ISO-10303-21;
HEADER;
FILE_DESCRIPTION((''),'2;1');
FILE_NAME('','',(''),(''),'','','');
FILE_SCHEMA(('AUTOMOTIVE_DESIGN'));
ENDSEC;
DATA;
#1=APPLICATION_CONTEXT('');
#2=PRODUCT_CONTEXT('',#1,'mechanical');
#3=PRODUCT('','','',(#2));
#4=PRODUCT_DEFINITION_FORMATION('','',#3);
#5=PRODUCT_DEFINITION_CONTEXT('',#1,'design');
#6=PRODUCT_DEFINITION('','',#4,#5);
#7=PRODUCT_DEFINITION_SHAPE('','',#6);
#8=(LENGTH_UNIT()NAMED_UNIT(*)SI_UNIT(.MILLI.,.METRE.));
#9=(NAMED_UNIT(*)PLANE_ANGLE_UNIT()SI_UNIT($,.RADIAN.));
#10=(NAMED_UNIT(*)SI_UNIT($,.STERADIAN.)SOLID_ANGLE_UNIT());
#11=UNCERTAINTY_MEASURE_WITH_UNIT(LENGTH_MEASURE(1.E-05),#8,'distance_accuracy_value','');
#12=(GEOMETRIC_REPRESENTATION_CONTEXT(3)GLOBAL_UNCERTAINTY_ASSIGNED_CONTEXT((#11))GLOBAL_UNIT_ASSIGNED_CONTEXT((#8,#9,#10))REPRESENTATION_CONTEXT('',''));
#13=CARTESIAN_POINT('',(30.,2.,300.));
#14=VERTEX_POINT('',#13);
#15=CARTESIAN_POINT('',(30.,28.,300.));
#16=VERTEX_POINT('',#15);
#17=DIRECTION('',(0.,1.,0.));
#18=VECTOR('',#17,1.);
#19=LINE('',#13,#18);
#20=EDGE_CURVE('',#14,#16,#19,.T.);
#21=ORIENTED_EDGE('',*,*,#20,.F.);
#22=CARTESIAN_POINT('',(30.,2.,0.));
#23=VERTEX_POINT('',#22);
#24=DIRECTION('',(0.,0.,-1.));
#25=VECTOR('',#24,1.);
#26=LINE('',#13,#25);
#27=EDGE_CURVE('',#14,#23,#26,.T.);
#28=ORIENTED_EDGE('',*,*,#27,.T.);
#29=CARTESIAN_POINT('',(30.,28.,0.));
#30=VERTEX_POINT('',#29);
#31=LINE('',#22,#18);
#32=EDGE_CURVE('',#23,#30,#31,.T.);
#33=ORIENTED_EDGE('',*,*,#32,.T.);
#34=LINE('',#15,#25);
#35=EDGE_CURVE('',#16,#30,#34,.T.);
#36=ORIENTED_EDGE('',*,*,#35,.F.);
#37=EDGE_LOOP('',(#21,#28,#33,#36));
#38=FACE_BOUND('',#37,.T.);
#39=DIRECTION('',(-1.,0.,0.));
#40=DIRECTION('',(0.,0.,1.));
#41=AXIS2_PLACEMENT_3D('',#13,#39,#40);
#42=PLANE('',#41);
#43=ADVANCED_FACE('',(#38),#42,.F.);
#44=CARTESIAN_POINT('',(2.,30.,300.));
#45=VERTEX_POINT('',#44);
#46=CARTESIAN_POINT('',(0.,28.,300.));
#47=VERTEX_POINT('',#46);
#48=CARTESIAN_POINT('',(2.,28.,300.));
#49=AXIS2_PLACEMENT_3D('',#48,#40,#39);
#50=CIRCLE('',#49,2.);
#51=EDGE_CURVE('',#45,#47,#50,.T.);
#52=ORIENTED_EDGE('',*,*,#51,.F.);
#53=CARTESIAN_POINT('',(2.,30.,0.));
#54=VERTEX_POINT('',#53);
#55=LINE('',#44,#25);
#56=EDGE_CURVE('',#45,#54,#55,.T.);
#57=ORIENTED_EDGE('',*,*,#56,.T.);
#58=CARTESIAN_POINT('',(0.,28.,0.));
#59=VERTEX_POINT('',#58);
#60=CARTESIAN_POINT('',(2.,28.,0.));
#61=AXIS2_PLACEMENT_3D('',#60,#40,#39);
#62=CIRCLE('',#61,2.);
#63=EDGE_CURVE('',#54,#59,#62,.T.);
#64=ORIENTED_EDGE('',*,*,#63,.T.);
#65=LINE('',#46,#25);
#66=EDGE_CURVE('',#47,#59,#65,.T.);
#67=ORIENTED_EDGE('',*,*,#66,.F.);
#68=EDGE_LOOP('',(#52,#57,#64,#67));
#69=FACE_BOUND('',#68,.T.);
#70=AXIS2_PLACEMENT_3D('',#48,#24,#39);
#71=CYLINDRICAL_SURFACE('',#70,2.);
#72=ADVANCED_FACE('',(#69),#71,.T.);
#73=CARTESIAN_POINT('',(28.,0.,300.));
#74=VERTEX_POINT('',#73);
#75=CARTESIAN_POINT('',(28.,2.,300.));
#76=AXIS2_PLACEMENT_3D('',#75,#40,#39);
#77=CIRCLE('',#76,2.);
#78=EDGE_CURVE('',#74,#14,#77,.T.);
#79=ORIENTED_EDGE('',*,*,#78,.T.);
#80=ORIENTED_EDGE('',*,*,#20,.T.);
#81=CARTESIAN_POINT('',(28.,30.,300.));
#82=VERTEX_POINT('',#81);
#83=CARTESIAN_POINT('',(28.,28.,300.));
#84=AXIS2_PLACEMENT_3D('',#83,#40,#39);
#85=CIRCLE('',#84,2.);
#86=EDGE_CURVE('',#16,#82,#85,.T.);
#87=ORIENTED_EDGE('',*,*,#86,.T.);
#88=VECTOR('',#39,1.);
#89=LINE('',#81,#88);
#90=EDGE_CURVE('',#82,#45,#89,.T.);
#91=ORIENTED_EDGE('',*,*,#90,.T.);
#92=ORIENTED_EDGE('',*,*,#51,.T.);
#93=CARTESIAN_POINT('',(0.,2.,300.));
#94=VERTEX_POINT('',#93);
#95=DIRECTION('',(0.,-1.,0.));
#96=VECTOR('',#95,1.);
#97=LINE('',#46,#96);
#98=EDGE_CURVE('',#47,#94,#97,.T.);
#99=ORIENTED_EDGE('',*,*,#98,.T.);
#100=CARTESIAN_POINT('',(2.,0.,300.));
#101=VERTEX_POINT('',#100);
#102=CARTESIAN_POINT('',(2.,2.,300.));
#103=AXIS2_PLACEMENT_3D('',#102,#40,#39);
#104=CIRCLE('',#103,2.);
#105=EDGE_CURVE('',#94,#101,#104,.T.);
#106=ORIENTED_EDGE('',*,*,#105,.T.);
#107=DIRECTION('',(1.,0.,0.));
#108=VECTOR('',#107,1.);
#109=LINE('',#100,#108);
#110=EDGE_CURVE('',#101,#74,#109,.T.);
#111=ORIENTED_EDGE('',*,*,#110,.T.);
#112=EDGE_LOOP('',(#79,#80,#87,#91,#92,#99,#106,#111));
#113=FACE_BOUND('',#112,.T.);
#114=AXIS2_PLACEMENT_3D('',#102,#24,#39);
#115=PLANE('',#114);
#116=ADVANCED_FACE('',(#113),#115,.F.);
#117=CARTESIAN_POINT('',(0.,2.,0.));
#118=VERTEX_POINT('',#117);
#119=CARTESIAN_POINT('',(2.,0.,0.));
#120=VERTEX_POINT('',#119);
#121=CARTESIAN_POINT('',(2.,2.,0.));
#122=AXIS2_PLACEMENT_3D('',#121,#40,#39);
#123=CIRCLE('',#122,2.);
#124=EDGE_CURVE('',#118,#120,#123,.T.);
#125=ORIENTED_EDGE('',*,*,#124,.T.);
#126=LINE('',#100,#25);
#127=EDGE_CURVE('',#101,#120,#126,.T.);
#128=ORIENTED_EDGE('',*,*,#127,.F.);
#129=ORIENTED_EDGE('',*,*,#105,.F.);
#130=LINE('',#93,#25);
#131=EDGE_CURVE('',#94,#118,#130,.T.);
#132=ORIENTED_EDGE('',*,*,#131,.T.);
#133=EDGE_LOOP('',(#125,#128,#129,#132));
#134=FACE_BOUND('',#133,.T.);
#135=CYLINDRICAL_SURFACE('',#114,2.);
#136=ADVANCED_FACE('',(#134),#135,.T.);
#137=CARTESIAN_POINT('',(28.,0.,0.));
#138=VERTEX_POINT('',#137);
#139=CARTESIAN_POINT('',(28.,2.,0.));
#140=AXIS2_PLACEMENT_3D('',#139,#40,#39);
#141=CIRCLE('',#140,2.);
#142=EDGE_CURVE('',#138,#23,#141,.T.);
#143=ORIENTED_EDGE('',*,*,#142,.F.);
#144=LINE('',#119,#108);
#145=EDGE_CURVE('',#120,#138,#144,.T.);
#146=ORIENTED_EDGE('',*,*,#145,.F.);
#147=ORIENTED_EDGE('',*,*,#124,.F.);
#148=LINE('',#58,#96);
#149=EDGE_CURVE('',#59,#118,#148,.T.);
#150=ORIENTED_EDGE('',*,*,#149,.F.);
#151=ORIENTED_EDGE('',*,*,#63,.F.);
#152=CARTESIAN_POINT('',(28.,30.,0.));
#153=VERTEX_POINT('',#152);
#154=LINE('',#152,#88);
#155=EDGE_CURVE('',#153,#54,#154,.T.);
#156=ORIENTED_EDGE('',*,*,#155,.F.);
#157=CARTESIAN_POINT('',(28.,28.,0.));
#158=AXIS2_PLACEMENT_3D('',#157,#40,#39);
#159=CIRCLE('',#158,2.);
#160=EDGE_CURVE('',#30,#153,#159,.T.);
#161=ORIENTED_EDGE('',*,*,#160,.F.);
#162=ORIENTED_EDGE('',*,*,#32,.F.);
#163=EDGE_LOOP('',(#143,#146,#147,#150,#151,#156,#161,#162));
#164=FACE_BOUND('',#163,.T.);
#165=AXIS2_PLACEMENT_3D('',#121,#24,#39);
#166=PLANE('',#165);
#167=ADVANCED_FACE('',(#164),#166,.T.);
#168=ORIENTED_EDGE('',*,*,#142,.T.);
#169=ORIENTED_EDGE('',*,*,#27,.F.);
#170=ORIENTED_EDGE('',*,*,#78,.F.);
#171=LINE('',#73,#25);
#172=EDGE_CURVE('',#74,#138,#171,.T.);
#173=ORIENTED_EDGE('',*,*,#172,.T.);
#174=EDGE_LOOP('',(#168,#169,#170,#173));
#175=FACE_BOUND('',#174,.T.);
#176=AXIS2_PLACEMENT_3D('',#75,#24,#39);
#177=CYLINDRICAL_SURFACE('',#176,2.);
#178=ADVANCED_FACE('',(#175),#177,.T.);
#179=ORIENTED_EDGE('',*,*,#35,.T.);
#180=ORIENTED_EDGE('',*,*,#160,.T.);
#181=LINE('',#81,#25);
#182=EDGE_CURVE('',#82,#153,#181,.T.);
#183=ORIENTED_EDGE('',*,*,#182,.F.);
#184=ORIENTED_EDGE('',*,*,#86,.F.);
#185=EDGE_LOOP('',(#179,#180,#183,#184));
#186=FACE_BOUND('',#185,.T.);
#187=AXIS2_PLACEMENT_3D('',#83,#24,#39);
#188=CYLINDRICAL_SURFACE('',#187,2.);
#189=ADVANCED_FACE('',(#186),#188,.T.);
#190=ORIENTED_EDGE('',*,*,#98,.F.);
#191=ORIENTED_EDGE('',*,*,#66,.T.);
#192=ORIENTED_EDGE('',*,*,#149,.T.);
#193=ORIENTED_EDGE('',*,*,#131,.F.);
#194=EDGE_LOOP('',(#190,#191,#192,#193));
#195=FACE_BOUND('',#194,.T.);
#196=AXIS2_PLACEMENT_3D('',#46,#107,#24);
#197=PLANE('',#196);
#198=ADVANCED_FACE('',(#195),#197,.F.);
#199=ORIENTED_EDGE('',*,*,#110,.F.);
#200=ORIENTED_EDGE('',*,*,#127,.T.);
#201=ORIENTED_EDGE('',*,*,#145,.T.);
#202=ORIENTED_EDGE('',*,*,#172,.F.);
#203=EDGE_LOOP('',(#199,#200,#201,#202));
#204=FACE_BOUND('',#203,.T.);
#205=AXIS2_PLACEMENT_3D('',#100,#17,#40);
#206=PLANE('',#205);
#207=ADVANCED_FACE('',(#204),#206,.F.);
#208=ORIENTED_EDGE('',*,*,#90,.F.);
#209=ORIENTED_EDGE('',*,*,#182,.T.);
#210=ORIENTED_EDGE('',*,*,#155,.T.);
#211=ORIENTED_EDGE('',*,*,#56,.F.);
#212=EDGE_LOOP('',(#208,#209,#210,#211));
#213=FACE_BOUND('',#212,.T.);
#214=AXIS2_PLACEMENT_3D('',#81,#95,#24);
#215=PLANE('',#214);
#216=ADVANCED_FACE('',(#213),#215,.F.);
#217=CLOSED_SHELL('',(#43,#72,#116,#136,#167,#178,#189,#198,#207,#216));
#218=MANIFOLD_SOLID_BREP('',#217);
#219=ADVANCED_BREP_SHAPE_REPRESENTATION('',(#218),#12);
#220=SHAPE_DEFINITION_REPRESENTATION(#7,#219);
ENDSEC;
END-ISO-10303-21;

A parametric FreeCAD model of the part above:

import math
import FreeCAD as App
import Part
import Sketcher
Q = App.Units.Quantity

doc = App.newDocument("Part")
body = doc.addObject("PartDesign::Body", "Body")

sketch1 = body.newObject("Sketcher::SketchObject", "Sketch")
sketch1.AttachmentSupport = (doc.getObject("XY_Plane"), [""])
sketch1.MapMode = "FlatFace"
sketch1.addGeometry([
    Part.LineSegment(App.Vector(2, 0, 0), App.Vector(28, 0, 0)),
    Part.ArcOfCircle(Part.Circle(App.Vector(28, 2, 0), App.Vector(0, 0, 1), 2), math.radians(-90), math.radians(0)),
    Part.LineSegment(App.Vector(30, 2, 0), App.Vector(30, 28, 0)),
    Part.ArcOfCircle(Part.Circle(App.Vector(28, 28, 0), App.Vector(0, 0, 1), 2), math.radians(0), math.radians(90)),
    Part.LineSegment(App.Vector(28, 30, 0), App.Vector(2, 30, 0)),
    Part.ArcOfCircle(Part.Circle(App.Vector(2, 28, 0), App.Vector(0, 0, 1), 2), math.radians(90), math.radians(180)),
    Part.LineSegment(App.Vector(0, 28, 0), App.Vector(0, 2, 0)),
    Part.ArcOfCircle(Part.Circle(App.Vector(2, 2, 0), App.Vector(0, 0, 1), 2), math.radians(-180), math.radians(-90)),
], False)
sketch1.addConstraint([
    Sketcher.Constraint("Tangent", 0, 2, 1, 1),
    Sketcher.Constraint("Tangent", 1, 2, 2, 1),
    Sketcher.Constraint("Tangent", 2, 2, 3, 1),
    Sketcher.Constraint("Tangent", 3, 2, 4, 1),
    Sketcher.Constraint("Tangent", 4, 2, 5, 1),
    Sketcher.Constraint("Tangent", 5, 2, 6, 1),
    Sketcher.Constraint("Tangent", 6, 2, 7, 1),
    Sketcher.Constraint("Tangent", 7, 2, 0, 1),
    Sketcher.Constraint("Horizontal", 0),
    Sketcher.Constraint("Vertical", 2),
    Sketcher.Constraint("Horizontal", 4),
    Sketcher.Constraint("Vertical", 6),
    Sketcher.Constraint("Equal", 1, 3),
    Sketcher.Constraint("Equal", 3, 5),
    Sketcher.Constraint("Equal", 5, 7),
    Sketcher.Constraint("PointOnObject", 0, 2, -1),
    Sketcher.Constraint("PointOnObject", 5, 2, -2),
    Sketcher.Constraint("Equal", 4, 2),
    Sketcher.Constraint("Radius", 1, Q("2 mm")),
    Sketcher.Constraint("DistanceX", 0, 1, 0, 2, Q("26 mm")),
])
pad1 = body.newObject("PartDesign::Pad", "Pad")
pad1.Profile = sketch1
pad1.Length = 300

doc.recompute()
